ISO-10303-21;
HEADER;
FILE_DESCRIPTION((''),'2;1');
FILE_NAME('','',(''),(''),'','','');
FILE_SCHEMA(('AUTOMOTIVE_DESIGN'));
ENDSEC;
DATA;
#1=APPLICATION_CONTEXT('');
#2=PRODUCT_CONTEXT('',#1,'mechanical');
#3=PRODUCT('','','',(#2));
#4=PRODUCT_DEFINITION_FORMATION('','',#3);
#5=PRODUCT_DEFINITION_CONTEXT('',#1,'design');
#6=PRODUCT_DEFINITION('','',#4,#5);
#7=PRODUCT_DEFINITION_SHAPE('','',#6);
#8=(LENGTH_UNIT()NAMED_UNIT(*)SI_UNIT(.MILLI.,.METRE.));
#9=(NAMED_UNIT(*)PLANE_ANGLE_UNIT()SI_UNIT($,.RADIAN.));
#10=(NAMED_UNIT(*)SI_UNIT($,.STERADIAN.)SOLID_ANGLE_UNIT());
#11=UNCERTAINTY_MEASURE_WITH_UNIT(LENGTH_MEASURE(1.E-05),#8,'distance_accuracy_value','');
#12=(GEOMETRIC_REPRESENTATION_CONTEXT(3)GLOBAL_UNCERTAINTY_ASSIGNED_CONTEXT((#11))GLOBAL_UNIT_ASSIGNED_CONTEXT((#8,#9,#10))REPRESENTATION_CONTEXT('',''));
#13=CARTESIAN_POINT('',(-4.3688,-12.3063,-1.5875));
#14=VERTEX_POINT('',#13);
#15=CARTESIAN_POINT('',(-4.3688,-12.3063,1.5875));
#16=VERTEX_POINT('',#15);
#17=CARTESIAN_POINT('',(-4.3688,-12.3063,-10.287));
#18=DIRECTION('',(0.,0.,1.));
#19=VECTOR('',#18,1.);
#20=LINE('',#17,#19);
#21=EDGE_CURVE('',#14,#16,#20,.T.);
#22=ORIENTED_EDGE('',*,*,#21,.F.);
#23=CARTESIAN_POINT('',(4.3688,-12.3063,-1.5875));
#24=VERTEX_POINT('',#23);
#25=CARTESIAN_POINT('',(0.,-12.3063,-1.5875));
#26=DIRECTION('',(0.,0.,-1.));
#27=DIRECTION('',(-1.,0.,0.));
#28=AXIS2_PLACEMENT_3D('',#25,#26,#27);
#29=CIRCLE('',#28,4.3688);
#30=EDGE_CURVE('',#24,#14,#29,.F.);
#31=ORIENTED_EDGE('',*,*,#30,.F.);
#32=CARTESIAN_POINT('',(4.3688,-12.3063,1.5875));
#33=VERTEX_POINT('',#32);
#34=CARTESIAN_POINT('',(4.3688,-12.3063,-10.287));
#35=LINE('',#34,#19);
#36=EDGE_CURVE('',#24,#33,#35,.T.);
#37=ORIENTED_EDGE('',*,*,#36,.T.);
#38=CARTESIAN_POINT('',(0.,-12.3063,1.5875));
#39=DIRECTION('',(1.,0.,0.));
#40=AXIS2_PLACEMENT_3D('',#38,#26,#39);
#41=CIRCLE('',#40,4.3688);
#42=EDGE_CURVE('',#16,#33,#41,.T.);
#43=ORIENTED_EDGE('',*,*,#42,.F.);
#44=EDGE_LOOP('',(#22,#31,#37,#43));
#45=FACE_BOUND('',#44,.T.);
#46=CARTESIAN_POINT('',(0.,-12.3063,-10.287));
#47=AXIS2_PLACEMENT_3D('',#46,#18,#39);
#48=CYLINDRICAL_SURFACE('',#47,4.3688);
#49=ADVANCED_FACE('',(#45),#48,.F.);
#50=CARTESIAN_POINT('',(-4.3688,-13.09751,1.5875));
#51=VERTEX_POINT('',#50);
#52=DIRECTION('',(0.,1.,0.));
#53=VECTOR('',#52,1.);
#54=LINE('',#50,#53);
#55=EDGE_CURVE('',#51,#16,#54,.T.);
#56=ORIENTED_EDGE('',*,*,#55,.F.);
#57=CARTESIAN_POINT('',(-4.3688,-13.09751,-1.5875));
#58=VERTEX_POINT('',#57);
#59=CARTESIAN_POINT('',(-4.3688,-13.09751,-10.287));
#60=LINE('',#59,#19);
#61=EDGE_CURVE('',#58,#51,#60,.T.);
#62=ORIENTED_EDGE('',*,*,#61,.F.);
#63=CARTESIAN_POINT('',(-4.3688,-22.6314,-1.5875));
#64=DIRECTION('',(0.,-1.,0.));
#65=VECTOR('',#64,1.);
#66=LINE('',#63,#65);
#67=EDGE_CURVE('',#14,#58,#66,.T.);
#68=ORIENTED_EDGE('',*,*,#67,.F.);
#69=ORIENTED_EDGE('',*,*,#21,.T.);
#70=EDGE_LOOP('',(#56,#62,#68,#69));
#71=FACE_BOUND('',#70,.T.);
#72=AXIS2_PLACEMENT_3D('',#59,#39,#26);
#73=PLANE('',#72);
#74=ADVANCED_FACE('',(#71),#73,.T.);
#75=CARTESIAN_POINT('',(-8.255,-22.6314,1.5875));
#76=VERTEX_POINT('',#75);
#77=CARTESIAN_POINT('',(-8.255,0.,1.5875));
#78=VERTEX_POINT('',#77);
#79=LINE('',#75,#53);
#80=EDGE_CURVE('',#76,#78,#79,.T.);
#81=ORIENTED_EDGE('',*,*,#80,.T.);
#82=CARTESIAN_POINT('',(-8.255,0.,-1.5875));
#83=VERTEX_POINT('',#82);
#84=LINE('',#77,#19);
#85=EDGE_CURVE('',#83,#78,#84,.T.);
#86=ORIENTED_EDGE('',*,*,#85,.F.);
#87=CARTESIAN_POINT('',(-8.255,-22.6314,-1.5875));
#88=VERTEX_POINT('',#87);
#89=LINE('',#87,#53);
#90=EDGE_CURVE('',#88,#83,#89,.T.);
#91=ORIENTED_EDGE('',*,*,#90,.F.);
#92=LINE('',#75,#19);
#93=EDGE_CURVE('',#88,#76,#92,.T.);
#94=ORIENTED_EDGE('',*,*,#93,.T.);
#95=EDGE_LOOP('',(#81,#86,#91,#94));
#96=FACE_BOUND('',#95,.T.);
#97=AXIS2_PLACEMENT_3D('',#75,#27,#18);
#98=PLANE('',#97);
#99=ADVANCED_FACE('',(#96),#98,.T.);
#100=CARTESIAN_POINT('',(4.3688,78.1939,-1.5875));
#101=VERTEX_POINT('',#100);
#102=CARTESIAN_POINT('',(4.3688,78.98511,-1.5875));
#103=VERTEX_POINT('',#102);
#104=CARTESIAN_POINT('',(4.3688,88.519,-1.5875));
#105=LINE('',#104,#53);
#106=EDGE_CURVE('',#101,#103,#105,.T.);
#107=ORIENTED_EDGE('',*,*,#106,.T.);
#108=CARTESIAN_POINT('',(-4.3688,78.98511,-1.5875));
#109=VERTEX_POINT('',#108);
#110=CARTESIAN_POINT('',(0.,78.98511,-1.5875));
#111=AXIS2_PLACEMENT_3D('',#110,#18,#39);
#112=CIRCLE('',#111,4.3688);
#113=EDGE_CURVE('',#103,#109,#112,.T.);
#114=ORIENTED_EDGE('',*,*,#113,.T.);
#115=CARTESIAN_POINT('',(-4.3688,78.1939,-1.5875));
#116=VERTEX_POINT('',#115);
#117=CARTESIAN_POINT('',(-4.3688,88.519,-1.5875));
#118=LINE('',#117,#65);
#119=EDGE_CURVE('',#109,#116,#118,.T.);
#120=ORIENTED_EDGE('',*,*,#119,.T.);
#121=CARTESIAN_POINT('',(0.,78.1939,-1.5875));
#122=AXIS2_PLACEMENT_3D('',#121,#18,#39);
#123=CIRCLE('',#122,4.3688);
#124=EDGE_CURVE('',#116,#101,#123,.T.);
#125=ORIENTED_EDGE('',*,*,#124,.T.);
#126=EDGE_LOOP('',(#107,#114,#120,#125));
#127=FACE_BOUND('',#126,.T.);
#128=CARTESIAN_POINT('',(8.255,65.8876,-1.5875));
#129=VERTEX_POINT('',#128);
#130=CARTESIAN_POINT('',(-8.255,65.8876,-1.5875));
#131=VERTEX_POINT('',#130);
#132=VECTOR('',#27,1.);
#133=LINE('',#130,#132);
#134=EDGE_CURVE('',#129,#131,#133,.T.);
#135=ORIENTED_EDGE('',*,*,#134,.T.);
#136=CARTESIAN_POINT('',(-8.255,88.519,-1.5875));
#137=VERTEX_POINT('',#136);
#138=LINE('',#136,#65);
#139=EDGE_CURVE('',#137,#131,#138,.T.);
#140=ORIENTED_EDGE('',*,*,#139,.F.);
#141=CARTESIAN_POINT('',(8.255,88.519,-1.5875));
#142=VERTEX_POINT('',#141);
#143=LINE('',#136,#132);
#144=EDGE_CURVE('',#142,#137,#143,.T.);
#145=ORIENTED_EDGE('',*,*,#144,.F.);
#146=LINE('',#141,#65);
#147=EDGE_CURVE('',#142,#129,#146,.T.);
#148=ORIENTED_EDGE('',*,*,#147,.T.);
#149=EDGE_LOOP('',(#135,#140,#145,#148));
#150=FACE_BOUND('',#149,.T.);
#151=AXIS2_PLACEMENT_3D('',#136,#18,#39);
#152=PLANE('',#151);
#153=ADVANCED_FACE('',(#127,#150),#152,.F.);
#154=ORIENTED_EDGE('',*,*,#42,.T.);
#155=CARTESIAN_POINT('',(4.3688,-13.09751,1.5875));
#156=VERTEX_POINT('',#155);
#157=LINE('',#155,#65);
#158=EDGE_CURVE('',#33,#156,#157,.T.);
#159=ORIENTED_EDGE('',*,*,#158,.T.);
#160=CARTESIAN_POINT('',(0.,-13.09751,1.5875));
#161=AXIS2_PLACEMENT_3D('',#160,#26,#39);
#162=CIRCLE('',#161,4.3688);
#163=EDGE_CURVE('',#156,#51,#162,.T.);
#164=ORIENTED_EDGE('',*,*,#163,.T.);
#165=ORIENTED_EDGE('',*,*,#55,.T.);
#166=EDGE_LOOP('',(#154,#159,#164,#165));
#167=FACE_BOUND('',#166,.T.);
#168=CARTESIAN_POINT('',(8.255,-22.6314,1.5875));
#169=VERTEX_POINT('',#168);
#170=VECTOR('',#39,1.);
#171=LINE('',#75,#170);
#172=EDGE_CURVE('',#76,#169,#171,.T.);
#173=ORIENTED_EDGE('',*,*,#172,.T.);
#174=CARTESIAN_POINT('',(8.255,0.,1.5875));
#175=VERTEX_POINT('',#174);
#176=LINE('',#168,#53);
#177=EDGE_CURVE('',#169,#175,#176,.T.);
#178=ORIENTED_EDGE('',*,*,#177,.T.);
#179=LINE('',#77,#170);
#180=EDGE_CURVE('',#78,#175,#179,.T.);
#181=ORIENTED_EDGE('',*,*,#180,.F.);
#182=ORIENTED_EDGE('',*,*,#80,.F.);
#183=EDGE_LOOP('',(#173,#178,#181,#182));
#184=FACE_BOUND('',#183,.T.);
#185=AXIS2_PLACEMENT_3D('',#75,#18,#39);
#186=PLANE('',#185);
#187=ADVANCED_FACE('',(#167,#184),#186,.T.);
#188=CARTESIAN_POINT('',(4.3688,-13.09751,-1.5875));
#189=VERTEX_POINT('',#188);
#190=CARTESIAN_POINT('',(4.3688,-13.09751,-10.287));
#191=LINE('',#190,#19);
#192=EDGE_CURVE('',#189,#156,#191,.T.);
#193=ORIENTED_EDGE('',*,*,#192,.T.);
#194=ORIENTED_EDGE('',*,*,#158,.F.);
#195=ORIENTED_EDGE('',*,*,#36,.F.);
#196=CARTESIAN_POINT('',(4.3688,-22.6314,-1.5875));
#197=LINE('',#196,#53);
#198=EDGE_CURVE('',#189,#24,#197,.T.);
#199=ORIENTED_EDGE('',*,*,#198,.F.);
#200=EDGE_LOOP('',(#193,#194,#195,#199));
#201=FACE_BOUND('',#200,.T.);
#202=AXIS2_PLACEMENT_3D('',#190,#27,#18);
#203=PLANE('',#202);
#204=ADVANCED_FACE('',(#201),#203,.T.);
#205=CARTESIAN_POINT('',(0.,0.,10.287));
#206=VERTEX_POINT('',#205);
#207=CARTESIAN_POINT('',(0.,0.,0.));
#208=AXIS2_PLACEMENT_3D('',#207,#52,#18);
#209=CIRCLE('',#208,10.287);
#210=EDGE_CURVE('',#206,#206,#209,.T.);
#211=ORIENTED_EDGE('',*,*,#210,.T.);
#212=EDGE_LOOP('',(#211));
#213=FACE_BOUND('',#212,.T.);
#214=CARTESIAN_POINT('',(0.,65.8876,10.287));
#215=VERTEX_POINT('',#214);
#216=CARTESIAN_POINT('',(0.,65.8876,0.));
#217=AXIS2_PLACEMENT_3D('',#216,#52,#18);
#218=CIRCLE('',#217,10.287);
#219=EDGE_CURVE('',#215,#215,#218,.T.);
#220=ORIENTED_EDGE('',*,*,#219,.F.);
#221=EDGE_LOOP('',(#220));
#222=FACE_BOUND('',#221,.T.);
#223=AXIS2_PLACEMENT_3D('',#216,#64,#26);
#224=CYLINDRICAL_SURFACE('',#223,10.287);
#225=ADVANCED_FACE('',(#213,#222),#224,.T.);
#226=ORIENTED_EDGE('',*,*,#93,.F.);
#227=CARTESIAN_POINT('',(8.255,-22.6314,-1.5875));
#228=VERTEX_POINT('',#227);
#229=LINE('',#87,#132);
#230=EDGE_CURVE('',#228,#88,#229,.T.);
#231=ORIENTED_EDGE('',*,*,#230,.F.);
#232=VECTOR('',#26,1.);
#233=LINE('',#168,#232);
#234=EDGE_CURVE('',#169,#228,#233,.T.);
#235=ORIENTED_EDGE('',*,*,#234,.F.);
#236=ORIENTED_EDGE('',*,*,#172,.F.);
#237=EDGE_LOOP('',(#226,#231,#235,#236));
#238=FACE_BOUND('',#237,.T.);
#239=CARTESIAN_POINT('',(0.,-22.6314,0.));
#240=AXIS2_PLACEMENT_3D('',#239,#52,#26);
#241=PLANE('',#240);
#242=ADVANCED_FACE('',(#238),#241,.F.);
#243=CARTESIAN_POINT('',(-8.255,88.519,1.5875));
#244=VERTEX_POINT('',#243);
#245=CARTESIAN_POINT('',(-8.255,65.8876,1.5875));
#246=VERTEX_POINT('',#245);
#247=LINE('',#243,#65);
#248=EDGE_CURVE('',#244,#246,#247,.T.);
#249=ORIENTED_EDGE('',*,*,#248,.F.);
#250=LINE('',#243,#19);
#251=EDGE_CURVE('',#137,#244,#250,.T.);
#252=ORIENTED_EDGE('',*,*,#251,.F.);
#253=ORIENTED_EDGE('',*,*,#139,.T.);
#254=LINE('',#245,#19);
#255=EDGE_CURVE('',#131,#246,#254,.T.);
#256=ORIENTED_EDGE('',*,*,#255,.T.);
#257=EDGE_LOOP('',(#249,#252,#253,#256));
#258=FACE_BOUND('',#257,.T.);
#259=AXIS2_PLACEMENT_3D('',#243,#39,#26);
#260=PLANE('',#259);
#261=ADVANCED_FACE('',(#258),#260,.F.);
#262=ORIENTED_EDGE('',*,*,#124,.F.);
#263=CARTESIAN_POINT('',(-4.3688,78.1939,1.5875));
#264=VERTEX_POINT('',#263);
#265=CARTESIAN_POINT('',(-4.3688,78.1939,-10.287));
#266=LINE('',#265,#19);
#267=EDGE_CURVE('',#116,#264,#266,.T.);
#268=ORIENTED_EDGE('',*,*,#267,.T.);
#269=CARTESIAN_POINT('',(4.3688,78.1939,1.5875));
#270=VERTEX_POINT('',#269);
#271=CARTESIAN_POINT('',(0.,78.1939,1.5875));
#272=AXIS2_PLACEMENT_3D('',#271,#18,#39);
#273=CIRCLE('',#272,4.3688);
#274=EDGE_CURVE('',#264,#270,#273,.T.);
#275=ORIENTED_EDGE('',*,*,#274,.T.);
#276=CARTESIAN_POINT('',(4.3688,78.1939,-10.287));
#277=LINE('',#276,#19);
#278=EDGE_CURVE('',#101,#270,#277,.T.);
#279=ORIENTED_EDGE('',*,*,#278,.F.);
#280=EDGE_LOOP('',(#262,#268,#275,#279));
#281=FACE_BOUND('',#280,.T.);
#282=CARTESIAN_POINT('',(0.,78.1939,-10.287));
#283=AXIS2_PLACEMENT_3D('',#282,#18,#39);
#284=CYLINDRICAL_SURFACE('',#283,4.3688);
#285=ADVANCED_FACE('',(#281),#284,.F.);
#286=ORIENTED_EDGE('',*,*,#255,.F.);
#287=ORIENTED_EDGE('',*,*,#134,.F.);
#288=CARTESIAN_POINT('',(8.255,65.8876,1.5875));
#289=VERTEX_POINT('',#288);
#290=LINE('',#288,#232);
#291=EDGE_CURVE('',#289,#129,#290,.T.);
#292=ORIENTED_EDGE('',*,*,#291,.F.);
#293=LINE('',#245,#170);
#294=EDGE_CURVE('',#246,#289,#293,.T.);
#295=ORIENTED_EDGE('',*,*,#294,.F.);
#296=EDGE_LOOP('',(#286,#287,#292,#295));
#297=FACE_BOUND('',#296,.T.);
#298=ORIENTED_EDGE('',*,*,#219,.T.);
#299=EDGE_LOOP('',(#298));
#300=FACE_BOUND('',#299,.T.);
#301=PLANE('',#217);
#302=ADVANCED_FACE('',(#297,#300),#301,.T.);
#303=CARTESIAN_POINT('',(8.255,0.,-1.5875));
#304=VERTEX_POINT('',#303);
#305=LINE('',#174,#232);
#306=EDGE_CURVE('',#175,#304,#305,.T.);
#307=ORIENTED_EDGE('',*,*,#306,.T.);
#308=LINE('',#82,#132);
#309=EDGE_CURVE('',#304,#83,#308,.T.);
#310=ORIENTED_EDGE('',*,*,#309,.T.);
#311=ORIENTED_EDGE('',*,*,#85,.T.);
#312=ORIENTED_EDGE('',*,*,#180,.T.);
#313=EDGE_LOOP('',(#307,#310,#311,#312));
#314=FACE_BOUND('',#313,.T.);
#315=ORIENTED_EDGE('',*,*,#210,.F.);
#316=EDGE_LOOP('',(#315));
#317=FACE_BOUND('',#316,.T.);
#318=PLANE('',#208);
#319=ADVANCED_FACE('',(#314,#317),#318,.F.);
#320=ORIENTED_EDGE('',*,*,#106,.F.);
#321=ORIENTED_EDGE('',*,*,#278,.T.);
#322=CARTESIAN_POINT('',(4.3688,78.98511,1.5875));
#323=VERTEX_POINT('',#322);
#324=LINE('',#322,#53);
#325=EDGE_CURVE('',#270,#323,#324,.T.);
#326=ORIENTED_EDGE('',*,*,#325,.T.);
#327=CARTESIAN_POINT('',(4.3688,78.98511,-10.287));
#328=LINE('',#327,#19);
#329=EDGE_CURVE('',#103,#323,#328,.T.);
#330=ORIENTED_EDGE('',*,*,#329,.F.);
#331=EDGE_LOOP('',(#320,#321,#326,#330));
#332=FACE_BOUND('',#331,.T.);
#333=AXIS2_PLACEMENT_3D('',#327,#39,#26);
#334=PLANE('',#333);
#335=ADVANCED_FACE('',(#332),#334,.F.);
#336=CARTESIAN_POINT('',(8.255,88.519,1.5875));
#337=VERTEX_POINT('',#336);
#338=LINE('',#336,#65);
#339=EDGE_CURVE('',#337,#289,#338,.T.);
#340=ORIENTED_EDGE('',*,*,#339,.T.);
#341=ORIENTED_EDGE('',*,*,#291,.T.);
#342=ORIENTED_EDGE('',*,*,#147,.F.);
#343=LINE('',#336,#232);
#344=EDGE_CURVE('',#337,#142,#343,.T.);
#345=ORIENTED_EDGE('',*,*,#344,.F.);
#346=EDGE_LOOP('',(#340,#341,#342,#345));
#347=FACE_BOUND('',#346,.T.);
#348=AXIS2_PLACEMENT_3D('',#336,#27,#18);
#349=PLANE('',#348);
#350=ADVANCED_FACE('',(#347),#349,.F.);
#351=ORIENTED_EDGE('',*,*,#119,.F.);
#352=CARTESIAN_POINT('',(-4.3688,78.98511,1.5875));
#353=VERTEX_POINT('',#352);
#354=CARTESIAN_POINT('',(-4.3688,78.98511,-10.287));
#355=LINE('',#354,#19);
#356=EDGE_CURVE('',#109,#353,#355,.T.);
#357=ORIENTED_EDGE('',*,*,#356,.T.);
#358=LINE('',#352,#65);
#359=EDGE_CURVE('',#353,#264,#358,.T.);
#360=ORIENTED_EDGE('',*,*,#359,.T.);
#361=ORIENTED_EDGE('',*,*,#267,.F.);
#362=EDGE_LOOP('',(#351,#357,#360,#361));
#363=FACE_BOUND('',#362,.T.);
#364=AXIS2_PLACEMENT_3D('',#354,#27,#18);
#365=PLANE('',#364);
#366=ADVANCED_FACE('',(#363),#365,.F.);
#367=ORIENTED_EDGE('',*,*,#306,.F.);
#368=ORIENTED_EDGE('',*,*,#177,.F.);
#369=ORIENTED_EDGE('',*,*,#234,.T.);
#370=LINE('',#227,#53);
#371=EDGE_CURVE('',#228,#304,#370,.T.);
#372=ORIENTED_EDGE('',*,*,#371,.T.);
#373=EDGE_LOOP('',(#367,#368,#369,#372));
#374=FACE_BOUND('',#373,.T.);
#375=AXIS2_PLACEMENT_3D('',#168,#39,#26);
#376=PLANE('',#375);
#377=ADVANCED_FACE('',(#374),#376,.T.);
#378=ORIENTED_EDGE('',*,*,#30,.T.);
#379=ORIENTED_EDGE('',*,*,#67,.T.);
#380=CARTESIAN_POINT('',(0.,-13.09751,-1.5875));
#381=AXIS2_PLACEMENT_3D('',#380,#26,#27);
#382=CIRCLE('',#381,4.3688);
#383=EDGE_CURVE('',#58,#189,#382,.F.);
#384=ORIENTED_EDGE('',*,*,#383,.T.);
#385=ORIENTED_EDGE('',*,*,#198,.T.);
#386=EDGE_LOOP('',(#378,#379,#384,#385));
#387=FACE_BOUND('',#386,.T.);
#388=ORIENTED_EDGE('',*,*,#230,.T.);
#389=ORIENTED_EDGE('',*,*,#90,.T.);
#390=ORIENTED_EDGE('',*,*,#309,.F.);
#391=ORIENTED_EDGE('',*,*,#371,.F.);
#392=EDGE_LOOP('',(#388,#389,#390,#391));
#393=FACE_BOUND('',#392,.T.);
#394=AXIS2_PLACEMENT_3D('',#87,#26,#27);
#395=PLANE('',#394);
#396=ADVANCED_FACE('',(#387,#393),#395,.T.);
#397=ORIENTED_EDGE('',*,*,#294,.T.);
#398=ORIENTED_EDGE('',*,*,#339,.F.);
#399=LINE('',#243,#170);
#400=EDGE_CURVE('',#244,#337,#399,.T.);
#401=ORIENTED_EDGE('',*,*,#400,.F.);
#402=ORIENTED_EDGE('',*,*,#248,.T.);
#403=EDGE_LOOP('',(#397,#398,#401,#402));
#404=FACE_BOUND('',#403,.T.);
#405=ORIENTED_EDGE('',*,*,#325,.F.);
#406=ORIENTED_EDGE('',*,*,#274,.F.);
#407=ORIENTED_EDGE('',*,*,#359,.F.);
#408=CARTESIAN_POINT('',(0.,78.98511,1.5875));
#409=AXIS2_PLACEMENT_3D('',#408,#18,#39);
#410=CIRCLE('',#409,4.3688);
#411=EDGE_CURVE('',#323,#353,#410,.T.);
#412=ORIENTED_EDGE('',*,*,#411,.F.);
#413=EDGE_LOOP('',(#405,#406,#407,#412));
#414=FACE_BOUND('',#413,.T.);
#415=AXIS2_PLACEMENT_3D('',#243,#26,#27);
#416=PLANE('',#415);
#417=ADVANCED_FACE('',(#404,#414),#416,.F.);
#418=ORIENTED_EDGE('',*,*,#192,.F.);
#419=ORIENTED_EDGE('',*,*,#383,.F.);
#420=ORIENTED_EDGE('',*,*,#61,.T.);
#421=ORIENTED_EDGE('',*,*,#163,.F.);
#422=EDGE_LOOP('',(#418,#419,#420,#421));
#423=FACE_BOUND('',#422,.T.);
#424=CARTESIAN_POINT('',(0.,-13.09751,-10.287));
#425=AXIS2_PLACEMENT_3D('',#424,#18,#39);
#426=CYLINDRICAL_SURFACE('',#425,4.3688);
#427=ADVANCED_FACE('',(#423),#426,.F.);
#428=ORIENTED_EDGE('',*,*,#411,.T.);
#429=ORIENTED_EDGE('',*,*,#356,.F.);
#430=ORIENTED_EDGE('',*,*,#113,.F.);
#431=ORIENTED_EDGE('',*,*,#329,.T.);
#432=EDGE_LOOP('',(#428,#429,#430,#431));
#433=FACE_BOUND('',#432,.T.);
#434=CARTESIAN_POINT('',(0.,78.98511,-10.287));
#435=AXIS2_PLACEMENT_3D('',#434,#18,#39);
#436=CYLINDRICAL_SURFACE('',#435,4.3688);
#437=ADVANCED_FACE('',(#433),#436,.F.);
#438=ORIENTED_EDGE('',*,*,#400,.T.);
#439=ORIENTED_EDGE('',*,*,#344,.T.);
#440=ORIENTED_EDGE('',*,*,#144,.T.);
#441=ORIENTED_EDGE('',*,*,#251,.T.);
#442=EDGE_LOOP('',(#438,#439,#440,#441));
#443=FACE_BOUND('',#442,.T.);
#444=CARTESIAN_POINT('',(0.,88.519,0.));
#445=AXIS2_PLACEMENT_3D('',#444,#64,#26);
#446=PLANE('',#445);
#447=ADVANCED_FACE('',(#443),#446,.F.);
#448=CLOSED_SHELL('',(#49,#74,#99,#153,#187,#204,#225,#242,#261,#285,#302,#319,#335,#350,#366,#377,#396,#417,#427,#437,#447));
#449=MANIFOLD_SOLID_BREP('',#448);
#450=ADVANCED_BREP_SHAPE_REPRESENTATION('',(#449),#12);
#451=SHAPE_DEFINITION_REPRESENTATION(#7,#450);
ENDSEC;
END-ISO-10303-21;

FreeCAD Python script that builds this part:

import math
import FreeCAD as App
import Part
import Sketcher
from FreeCAD import Vector
Q = App.Units.Quantity


def add_polygon(sketch, points):
    """Adds a closed chain of lines whose ends are joined by coincident constraints."""
    first, n = sketch.GeometryCount, len(points)
    for a, b in zip(points, points[1:] + points[:1]):
        sketch.addGeometry(Part.LineSegment(App.Vector(*a, 0), App.Vector(*b, 0)), False)
    for i in range(n):
        sketch.addConstraint(Sketcher.Constraint("Coincident", first + i, 2, first + (i + 1) % n, 1))

doc = App.newDocument("Part")
body = doc.addObject("PartDesign::Body", "Body")

# Sketch on XZ plane
sketch1 = doc.addObject("Sketcher::SketchObject", "Sketch")
body.addObject(sketch1)
sketch1.AttachmentSupport = (doc.XZ_Plane, [""])
sketch1.MapMode = "FlatFace"
sketch1.addGeometry(Part.Circle(Vector(0, 0, 0), Vector(0, 0, 1), 10.287), False)
sketch1.addConstraint([
    Sketcher.Constraint("Coincident", 0, 3, -1, 1),
    Sketcher.Constraint("Diameter", 0, Q("0.81 in")),
])
pad1 = doc.addObject("PartDesign::Pad", "Pad")
body.addObject(pad1)
pad1.Profile = sketch1
pad1.Length = Q("2.594 in")
pad1.Reversed = True

# Sketch on XZ plane
sketch2 = doc.addObject("Sketcher::SketchObject", "Sketch001")
body.addObject(sketch2)
sketch2.AttachmentSupport = (doc.XZ_Plane, [""])
sketch2.MapMode = "FlatFace"
sketch2.AttachmentOffset = App.Placement(Vector(0, 0, -2.594 * 25.4), App.Rotation())
add_polygon(sketch2, [(-8.255, -1.5875), (-8.255, 1.5875), (8.255, 1.5875), (8.255, -1.5875)])  # lines 0-3
sketch2.addConstraint([
    Sketcher.Constraint("Vertical", 0),
    Sketcher.Constraint("Horizontal", 1),
    Sketcher.Constraint("Vertical", 2),
    Sketcher.Constraint("Horizontal", 3),
    Sketcher.Constraint("Symmetric", 0, 2, 2, 2, -1, 1),
    Sketcher.Constraint("DistanceX", 1, 1, 1, 2, Q("0.65 in")),
    Sketcher.Constraint("DistanceY", 0, 1, 0, 2, Q("0.125 in")),
])
pad2 = doc.addObject("PartDesign::Pad", "Pad001")
body.addObject(pad2)
pad2.Profile = sketch2
pad2.Length = Q("0.891 in")
pad2.Reversed = True

# Sketch on XY plane
sketch3 = doc.addObject("Sketcher::SketchObject", "Sketch002")
body.addObject(sketch3)
sketch3.AttachmentSupport = (doc.XY_Plane, [""])
sketch3.MapMode = "FlatFace"
sketch3.AttachmentOffset = App.Placement(Vector(0, 0, 0.0625 * 25.4), App.Rotation())
sketch3.addGeometry([
    Part.LineSegment(Vector(-4.3688, 78.98511, 0), Vector(-4.3688, 78.1939, 0)),
    Part.ArcOfCircle(Part.Circle(Vector(0, 78.1939, 0), Vector(0, 0, 1), 4.3688), math.radians(180), math.radians(360)),
    Part.LineSegment(Vector(4.3688, 78.1939, 0), Vector(4.3688, 78.98511, 0)),
    Part.ArcOfCircle(Part.Circle(Vector(0, 78.98511, 0), Vector(0, 0, 1), 4.3688), math.radians(0), math.radians(180)),
], False)
sketch3.addConstraint([
    Sketcher.Constraint("Tangent", 0, 2, 1, 1),
    Sketcher.Constraint("Tangent", 1, 2, 2, 1),
    Sketcher.Constraint("Tangent", 2, 2, 3, 1),
    Sketcher.Constraint("Tangent", 3, 2, 0, 1),
    Sketcher.Constraint("Vertical", 0),
    Sketcher.Constraint("Vertical", 2),
    Sketcher.Constraint("PointOnObject", 1, 3, -2),
    Sketcher.Constraint("Radius", 1, Q("0.172 in")),
    Sketcher.Constraint("DistanceY", -1, 1, 1, 3, Q("3.0785 in")),
    Sketcher.Constraint("DistanceY", 0, 2, 0, 1, 0.79121),
])
pocket1 = doc.addObject("PartDesign::Pocket", "Pocket")
body.addObject(pocket1)
pocket1.Profile = sketch3
pocket1.Type = "ThroughAll"
doc.recompute()

datumplane = doc.addObject("PartDesign::Plane", "DatumPlane")
body.addObject(datumplane)
datumplane.AttachmentSupport = (doc.XZ_Plane, [""])
datumplane.MapMode = "FlatFace"
datumplane.AttachmentOffset = App.Placement(Vector(0, 0, -1.297 * 25.4), App.Rotation())
mirrored = doc.addObject("PartDesign::Mirrored", "Mirrored")
body.addObject(mirrored)
mirrored.Originals = [pad2, pocket1]
mirrored.MirrorPlane = (datumplane, [""])
body.Tip = mirrored

doc.recompute()
